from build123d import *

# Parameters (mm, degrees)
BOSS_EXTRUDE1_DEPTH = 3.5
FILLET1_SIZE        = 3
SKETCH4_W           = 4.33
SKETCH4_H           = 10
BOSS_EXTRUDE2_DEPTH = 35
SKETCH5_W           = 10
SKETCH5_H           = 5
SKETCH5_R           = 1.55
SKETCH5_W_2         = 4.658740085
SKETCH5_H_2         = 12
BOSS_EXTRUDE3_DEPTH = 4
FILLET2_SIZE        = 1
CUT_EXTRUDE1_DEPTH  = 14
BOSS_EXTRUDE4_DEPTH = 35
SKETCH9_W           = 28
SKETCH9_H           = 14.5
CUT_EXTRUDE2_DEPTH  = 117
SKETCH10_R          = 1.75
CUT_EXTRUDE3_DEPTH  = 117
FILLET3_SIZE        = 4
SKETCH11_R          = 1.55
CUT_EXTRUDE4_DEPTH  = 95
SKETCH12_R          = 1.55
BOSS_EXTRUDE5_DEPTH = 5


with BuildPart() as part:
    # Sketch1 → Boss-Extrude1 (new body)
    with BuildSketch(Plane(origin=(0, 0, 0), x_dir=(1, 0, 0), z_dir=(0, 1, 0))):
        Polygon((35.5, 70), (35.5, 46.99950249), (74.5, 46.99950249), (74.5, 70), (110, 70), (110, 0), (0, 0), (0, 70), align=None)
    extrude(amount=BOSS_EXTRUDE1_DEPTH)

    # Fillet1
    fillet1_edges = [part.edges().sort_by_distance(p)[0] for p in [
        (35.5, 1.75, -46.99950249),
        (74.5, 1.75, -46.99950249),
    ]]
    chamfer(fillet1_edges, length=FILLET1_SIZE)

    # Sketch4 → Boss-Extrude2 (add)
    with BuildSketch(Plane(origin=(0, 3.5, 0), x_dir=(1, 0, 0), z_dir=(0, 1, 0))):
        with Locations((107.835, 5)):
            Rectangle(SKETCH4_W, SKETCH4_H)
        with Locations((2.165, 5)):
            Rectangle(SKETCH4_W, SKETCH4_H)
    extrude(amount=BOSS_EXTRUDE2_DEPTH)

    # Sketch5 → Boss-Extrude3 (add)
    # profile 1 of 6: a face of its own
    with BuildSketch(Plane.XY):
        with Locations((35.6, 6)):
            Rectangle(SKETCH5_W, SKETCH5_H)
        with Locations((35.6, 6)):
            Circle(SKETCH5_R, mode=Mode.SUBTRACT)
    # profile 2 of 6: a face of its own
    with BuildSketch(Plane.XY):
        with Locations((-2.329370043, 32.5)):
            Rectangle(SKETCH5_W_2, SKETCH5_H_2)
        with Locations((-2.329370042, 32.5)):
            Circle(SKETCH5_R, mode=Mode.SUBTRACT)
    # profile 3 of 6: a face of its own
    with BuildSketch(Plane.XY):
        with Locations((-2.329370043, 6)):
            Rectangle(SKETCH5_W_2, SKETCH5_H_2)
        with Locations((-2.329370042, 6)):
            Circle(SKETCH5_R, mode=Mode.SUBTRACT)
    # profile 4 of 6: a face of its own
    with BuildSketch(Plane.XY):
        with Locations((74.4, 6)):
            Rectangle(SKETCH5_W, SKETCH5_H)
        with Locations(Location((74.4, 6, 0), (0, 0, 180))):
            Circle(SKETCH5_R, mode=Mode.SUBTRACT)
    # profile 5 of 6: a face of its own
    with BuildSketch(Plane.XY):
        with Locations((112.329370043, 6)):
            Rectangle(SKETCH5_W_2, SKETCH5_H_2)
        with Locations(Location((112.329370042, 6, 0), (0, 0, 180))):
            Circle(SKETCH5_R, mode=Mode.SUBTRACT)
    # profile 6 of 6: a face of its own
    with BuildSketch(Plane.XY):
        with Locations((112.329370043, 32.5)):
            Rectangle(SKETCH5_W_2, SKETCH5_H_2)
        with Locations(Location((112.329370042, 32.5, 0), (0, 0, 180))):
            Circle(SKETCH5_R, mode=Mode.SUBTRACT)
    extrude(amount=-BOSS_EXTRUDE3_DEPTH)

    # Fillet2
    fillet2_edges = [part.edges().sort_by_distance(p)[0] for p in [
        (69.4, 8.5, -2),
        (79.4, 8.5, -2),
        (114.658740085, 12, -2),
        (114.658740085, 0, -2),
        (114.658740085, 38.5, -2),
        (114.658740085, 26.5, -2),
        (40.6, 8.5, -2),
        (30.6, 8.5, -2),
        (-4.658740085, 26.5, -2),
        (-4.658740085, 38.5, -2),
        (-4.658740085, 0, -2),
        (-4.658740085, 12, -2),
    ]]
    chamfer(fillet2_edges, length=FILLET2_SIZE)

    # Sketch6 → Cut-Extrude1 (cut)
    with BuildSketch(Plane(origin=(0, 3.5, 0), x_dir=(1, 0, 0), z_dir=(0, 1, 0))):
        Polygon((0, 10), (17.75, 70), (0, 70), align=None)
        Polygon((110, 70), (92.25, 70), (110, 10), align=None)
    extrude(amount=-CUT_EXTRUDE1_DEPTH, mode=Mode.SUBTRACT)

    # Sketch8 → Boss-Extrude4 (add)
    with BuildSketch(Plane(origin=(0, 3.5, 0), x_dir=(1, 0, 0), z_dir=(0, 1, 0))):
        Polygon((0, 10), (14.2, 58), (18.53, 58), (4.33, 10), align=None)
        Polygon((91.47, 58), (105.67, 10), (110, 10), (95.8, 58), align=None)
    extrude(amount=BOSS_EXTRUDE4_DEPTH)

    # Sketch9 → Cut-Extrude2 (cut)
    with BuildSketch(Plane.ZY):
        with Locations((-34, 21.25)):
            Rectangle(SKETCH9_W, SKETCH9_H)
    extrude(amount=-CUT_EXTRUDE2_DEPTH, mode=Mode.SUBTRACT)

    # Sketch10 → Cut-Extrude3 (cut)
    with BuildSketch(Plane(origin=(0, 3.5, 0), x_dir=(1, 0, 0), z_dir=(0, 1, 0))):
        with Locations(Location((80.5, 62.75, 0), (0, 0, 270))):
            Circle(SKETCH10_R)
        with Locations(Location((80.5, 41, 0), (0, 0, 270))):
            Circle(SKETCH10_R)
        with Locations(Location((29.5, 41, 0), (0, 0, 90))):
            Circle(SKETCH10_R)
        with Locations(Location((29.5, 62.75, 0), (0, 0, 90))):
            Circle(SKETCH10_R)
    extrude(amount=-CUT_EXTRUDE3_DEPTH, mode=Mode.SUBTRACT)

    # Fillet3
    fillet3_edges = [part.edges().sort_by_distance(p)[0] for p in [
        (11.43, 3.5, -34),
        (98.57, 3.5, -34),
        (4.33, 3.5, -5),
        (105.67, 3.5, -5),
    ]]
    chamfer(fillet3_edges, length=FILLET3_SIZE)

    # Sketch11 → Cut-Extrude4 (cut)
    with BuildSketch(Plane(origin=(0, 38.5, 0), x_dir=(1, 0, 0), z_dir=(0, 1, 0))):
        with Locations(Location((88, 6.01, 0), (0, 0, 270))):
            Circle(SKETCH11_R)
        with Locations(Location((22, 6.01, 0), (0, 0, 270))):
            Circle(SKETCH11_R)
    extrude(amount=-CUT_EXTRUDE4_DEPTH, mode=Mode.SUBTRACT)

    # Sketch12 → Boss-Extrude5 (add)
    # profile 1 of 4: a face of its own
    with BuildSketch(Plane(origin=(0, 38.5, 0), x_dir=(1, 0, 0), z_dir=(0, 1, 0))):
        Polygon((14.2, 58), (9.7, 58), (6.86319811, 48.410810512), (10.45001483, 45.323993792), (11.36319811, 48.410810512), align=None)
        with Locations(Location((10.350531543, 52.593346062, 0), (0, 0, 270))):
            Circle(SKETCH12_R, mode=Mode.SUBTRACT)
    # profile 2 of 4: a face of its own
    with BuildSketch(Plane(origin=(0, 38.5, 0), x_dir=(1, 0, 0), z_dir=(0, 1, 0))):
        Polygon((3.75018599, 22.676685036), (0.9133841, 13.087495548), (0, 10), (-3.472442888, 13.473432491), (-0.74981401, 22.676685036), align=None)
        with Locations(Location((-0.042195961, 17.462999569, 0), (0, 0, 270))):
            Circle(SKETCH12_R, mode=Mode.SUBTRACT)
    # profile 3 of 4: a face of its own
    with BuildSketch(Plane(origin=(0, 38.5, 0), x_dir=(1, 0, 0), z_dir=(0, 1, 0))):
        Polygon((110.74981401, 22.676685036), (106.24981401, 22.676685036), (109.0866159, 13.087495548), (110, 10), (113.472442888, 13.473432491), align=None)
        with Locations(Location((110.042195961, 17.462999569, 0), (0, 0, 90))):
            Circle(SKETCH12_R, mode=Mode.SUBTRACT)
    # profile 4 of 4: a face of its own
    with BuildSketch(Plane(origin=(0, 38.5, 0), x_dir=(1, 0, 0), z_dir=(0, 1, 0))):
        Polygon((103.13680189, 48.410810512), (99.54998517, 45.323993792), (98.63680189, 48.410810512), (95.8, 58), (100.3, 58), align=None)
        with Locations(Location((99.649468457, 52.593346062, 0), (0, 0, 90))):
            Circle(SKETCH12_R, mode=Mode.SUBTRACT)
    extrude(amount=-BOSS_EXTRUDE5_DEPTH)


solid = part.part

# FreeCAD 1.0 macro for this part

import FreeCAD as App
import Part
import Sketcher
from FreeCAD import Vector


def edges_at(feature, points):
    """Names of the edges that pass closest to the given points."""
    edges = feature.Shape.Edges
    near = lambda p: min(range(len(edges)), key=lambda i: edges[i].distToShape(Part.Vertex(*p))[0])
    return sorted({f"Edge{near(p) + 1}" for p in points})


def add_polygon(sketch, points):
    """Adds a closed chain of lines whose ends are joined by coincident constraints."""
    first, n = sketch.GeometryCount, len(points)
    for a, b in zip(points, points[1:] + points[:1]):
        sketch.addGeometry(Part.LineSegment(App.Vector(*a, 0), App.Vector(*b, 0)), False)
    for i in range(n):
        sketch.addConstraint(Sketcher.Constraint("Coincident", first + i, 2, first + (i + 1) % n, 1))

doc = App.newDocument("Part")
params = doc.addObject("Spreadsheet::Sheet", "Params")
for row, (alias, value) in enumerate([
    ("sketch1_width", "110 mm"),
    ("sketch1_width2", "39 mm"),
    ("sketch1_height", "70 mm"),
    ("pad1_length", "3.5 mm"),
    ("chamfer_size", "3 mm"),
    ("sketch2_height", "10 mm"),
    ("sketch2_width", "4.33 mm"),
    ("pad2_length", "35 mm"),
    ("sketch3_diameter", "3.1 mm"),
    ("sketch3_width", "10 mm"),
    ("sketch3_height", "5 mm"),
    ("sketch3_height2", "12 mm"),
    ("pad3_length", "4 mm"),
    ("chamfer2_size", "1 mm"),
    ("sketch4_height", "60 mm"),
    ("sketch4_width", "17.75 mm"),
    ("pocket1_length", "14 mm"),
    ("sketch5_width", "4.33 mm"),
    ("pad4_length", "35 mm"),
    ("sketch6_height", "28 mm"),
    ("sketch6_width", "14.5 mm"),
    ("pocket2_length", "117 mm"),
    ("sketch7_diameter", "3.5 mm"),
    ("pocket3_length", "117 mm"),
    ("chamfer3_size", "4 mm"),
    ("sketch8_diameter", "3.1 mm"),
    ("pocket4_length", "95 mm"),
    ("sketch9_diameter", "3.1 mm"),
    ("sketch9_length", "10 mm"),
    ("sketch9_width", "4.5 mm"),
    ("pad5_length", "5 mm"),
], start=1):
    params.set(f"A{row}", alias)
    params.set(f"B{row}", "=" + value)
    params.setAlias(f"B{row}", alias)

body = doc.addObject("PartDesign::Body", "Body")

# Sketch on XZ plane
sketch1 = body.newObject("Sketcher::SketchObject", "Sketch")
sketch1.AttachmentSupport = (doc.getObject("XZ_Plane"), [""])
sketch1.MapMode = "FlatFace"
add_polygon(sketch1, [(36, -47), (36, -70), (0, -70), (0, 0), (110, 0), (110, -70), (74, -70), (74, -47)])  # lines 0-7
sketch1.addConstraint([
    Sketcher.Constraint("Vertical", 0),
    Sketcher.Constraint("Horizontal", 1),
    Sketcher.Constraint("Vertical", 2),
    Sketcher.Constraint("Horizontal", 3),
    Sketcher.Constraint("Vertical", 4),
    Sketcher.Constraint("Horizontal", 5),
    Sketcher.Constraint("Vertical", 6),
    Sketcher.Constraint("Horizontal", 7),
    Sketcher.Constraint("Coincident", 2, 2, -1, 1),
    Sketcher.Constraint("Horizontal", 1, 2, 4, 2),
    Sketcher.Constraint("Equal", 1, 5),
    Sketcher.Constraint("DistanceX", 3, 1, 3, 2, 110.0),
    Sketcher.Constraint("DistanceX", 7, 2, 7, 1, 39.0),
    Sketcher.Constraint("DistanceY", 2, 1, 2, 2, 70.0),
    Sketcher.Constraint("DistanceY", 0, 2, 0, 1, 23.000498),
])
sketch1.setExpression("Constraints[19]", "Params.sketch1_width")
sketch1.setExpression("Constraints[20]", "Params.sketch1_width2")
sketch1.setExpression("Constraints[21]", "Params.sketch1_height")
pad1 = body.newObject("PartDesign::Pad", "Pad")
pad1.Profile = sketch1
pad1.setExpression("Length", "Params.pad1_length")
pad1.Reversed = True
doc.recompute()

chamfer = body.newObject("PartDesign::Chamfer", "Chamfer")
chamfer.Base = (pad1, edges_at(pad1, [(35.5, 1.75, -47), (74.5, 1.75, -47)]))
chamfer.setExpression("Size", "Params.chamfer_size")

# Sketch on XZ plane
sketch2 = body.newObject("Sketcher::SketchObject", "Sketch001")
sketch2.AttachmentSupport = (doc.getObject("XZ_Plane"), [""])
sketch2.MapMode = "FlatFace"
sketch2.AttachmentOffset = App.Placement(Vector(0, 0, -3.5), App.Rotation())
add_polygon(sketch2, [(105.7, -10), (105.7, 0), (110, 0), (110, -10)])  # lines 0-3
add_polygon(sketch2, [(0, -10), (0, 0), (4.3, 0), (4.3, -10)])  # lines 4-7
sketch2.addConstraint([
    Sketcher.Constraint("Vertical", 0),
    Sketcher.Constraint("Horizontal", 1),
    Sketcher.Constraint("Vertical", 2),
    Sketcher.Constraint("Horizontal", 3),
    Sketcher.Constraint("Vertical", 4),
    Sketcher.Constraint("Horizontal", 5),
    Sketcher.Constraint("Vertical", 6),
    Sketcher.Constraint("Horizontal", 7),
    Sketcher.Constraint("Coincident", 4, 2, -1, 1),
    Sketcher.Constraint("PointOnObject", 0, 2, -1),
    Sketcher.Constraint("Horizontal", 3, 2, 6, 2),
    Sketcher.Constraint("Equal", 3, 5),
    Sketcher.Constraint("DistanceY", 0, 1, 0, 2, 10.0),
    Sketcher.Constraint("DistanceX", -1, 1, 1, 2, 110.0),
    Sketcher.Constraint("DistanceX", 1, 1, 1, 2, 4.33),
])
sketch2.setExpression("Constraints[20]", "Params.sketch2_height")
sketch2.setExpression("Constraints[22]", "Params.sketch2_width")
pad2 = body.newObject("PartDesign::Pad", "Pad001")
pad2.Profile = sketch2
pad2.setExpression("Length", "Params.pad2_length")
pad2.Reversed = True

# Sketch on XY plane
sketch3 = body.newObject("Sketcher::SketchObject", "Sketch002")
sketch3.AttachmentSupport = (doc.getObject("XY_Plane"), [""])
sketch3.MapMode = "FlatFace"
add_polygon(sketch3, [(30.6, 8.5), (30.6, 3.5), (40.6, 3.5), (40.6, 8.5)])  # lines 0-3
sketch3.addGeometry(Part.Circle(Vector(35.6, 6, 0), Vector(0, 0, 1), 1.6), False)  # 4
add_polygon(sketch3, [(-4.7, 38.5), (-4.7, 26.5), (0, 26.5), (0, 38.5)])  # lines 5-8
sketch3.addGeometry(Part.Circle(Vector(-2.3, 32.5, 0), Vector(0, 0, 1), 1.6), False)  # 9
add_polygon(sketch3, [(-4.7, 12), (-4.7, 0), (0, 0), (0, 12)])  # lines 10-13
sketch3.addGeometry(Part.Circle(Vector(-2.3, 6, 0), Vector(0, 0, 1), 1.6), False)  # 14
add_polygon(sketch3, [(69.4, 8.5), (69.4, 3.5), (79.4, 3.5), (79.4, 8.5)])  # lines 15-18
sketch3.addGeometry(Part.Circle(Vector(74.4, 6, 0), Vector(0, 0, 1), 1.6), False)  # 19
add_polygon(sketch3, [(110, 12), (110, 0), (114.7, 0), (114.7, 12)])  # lines 20-23
sketch3.addGeometry(Part.Circle(Vector(112.3, 6, 0), Vector(0, 0, 1), 1.6), False)  # 24
add_polygon(sketch3, [(110, 38.5), (110, 26.5), (114.7, 26.5), (114.7, 38.5)])  # lines 25-28
sketch3.addGeometry(Part.Circle(Vector(112.3, 32.5, 0), Vector(0, 0, 1), 1.6), False)  # 29
sketch3.addConstraint([
    Sketcher.Constraint("Vertical", 0),
    Sketcher.Constraint("Horizontal", 1),
    Sketcher.Constraint("Vertical", 2),
    Sketcher.Constraint("Horizontal", 3),
    Sketcher.Constraint("Vertical", 5),
    Sketcher.Constraint("Horizontal", 6),
    Sketcher.Constraint("Vertical", 7),
    Sketcher.Constraint("Horizontal", 8),
    Sketcher.Constraint("Vertical", 10),
    Sketcher.Constraint("Horizontal", 11),
    Sketcher.Constraint("Vertical", 12),
    Sketcher.Constraint("Horizontal", 13),
    Sketcher.Constraint("Vertical", 15),
    Sketcher.Constraint("Horizontal", 16),
    Sketcher.Constraint("Vertical", 17),
    Sketcher.Constraint("Horizontal", 18),
    Sketcher.Constraint("Vertical", 20),
    Sketcher.Constraint("Horizontal", 21),
    Sketcher.Constraint("Vertical", 22),
    Sketcher.Constraint("Horizontal", 23),
    Sketcher.Constraint("Vertical", 25),
    Sketcher.Constraint("Horizontal", 26),
    Sketcher.Constraint("Vertical", 27),
    Sketcher.Constraint("Horizontal", 28),
    Sketcher.Constraint("Coincident", 11, 2, -1, 1),
    Sketcher.Constraint("Equal", 4, 9),
    Sketcher.Constraint("Equal", 9, 14),
    Sketcher.Constraint("Equal", 14, 19),
    Sketcher.Constraint("Equal", 19, 24),
    Sketcher.Constraint("Equal", 24, 29),
    Sketcher.Constraint("PointOnObject", 6, 2, -2),
    Sketcher.Constraint("PointOnObject", 20, 2, -1),
    Sketcher.Constraint("Horizontal", 4, 3, 14, 3),
    Sketcher.Constraint("Horizontal", 14, 3, 19, 3),
    Sketcher.Constraint("Horizontal", 19, 3, 24, 3),
    Sketcher.Constraint("Horizontal", 9, 3, 29, 3),
    Sketcher.Constraint("Horizontal", 1, 2, 15, 2),
    Sketcher.Constraint("Horizontal", 3, 2, 17, 2),
    Sketcher.Constraint("Horizontal", 13, 2, 22, 2),
    Sketcher.Constraint("Horizontal", 6, 2, 25, 2),
    Sketcher.Constraint("Horizontal", 8, 2, 27, 2),
    Sketcher.Constraint("Vertical", 9, 3, 14, 3),
    Sketcher.Constraint("Vertical", 24, 3, 29, 3),
    Sketcher.Constraint("Vertical", 8, 2, 10, 2),
    Sketcher.Constraint("Vertical", 23, 2, 25, 2),
    Sketcher.Constraint("Vertical", 22, 2, 26, 2),
    Sketcher.Constraint("Equal", 3, 16),
    Sketcher.Constraint("Equal", 13, 21),
    Sketcher.Constraint("Equal", 7, 10),
    Sketcher.Constraint("Diameter", 4, 3.1),
    Sketcher.Constraint("DistanceX", 1, 1, 1, 2, 10.0),
    Sketcher.Constraint("DistanceY", 0, 2, 0, 1, 5.0),
    Sketcher.Constraint("DistanceY", 5, 2, 5, 1, 12.0),
    Sketcher.Constraint("DistanceY", -1, 1, 4, 3, 6.0),
    Sketcher.Constraint("DistanceX", -1, 1, 20, 2, 110.0),
    Sketcher.Constraint("DistanceX", 0, 2, 4, 3, 5.0),
    Sketcher.Constraint("DistanceY", 0, 2, 9, 3, 29.0),
    Sketcher.Constraint("DistanceY", 5, 2, 9, 3, 6.0),
    Sketcher.Constraint("DistanceX", 15, 2, 19, 3, 5.0),
    Sketcher.Constraint("DistanceX", -1, 1, 4, 3, 35.6),
    Sketcher.Constraint("DistanceY", -1, 1, 9, 3, 32.5),
    Sketcher.Constraint("DistanceX", -1, 1, 19, 3, 74.4),
    Sketcher.Constraint("DistanceX", 6, 1, 6, 2, 4.65874),
    Sketcher.Constraint("DistanceX", 9, 3, -1, 1, 2.32937),
    Sketcher.Constraint("DistanceX", -1, 1, 24, 3, 112.32937),
])
sketch3.setExpression("Constraints[73]", "Params.sketch3_diameter")
sketch3.setExpression("Constraints[74]", "Params.sketch3_width")
sketch3.setExpression("Constraints[75]", "Params.sketch3_height")
sketch3.setExpression("Constraints[76]", "Params.sketch3_height2")
pad3 = body.newObject("PartDesign::Pad", "Pad002")
pad3.Profile = sketch3
pad3.setExpression("Length", "Params.pad3_length")
pad3.Reversed = True
doc.recompute()

chamfer2 = body.newObject("PartDesign::Chamfer", "Chamfer001")
chamfer2.Base = (pad3, edges_at(pad3, [
    (69.4, 8.5, -2),
    (79.4, 8.5, -2),
    (114.659, 12, -2),
    (114.659, 0, -2),
    (114.659, 38.5, -2),
    (114.659, 26.5, -2),
    (40.6, 8.5, -2),
    (30.6, 8.5, -2),
    (-4.659, 26.5, -2),
    (-4.659, 38.5, -2),
    (-4.659, 0, -2),
    (-4.659, 12, -2),
]))
chamfer2.setExpression("Size", "Params.chamfer2_size")

# Sketch on XZ plane
sketch4 = body.newObject("Sketcher::SketchObject", "Sketch003")
sketch4.AttachmentSupport = (doc.getObject("XZ_Plane"), [""])
sketch4.MapMode = "FlatFace"
sketch4.AttachmentOffset = App.Placement(Vector(0, 0, -3.5), App.Rotation())
add_polygon(sketch4, [(0, -10), (18, -70), (0, -70)])  # lines 0-2
add_polygon(sketch4, [(110, -70), (92, -70), (110, -10)])  # lines 3-5
sketch4.addConstraint([
    Sketcher.Constraint("Horizontal", 1),
    Sketcher.Constraint("Vertical", 2),
    Sketcher.Constraint("Horizontal", 3),
    Sketcher.Constraint("Vertical", 5),
    Sketcher.Constraint("PointOnObject", 1, 2, -2),
    Sketcher.Constraint("Horizontal", 1, 2, 3, 2),
    Sketcher.Constraint("Horizontal", 2, 2, 4, 2),
    Sketcher.Constraint("Equal", 1, 3),
    Sketcher.Constraint("DistanceY", 2, 1, 2, 2, 60.0),
    Sketcher.Constraint("DistanceY", 0, 2, -1, 1, 70.0),
    Sketcher.Constraint("DistanceX", -1, 1, 4, 2, 110.0),
    Sketcher.Constraint("DistanceX", 1, 2, 1, 1, 17.75),
])
sketch4.setExpression("Constraints[14]", "Params.sketch4_height")
sketch4.setExpression("Constraints[17]", "Params.sketch4_width")
pocket1 = body.newObject("PartDesign::Pocket", "Pocket")
pocket1.Profile = sketch4
pocket1.setExpression("Length", "Params.pocket1_length")
pocket1.Reversed = True

# Sketch on XZ plane
sketch5 = body.newObject("Sketcher::SketchObject", "Sketch004")
sketch5.AttachmentSupport = (doc.getObject("XZ_Plane"), [""])
sketch5.MapMode = "FlatFace"
sketch5.AttachmentOffset = App.Placement(Vector(0, 0, -3.5), App.Rotation())
add_polygon(sketch5, [(14.2, -58), (0, -10), (4.3, -10), (18.5, -58)])  # lines 0-3
add_polygon(sketch5, [(91.5, -58), (105.7, -10), (110, -10), (95.8, -58)])  # lines 4-7
sketch5.addConstraint([
    Sketcher.Constraint("Horizontal", 1),
    Sketcher.Constraint("Horizontal", 3),
    Sketcher.Constraint("Horizontal", 5),
    Sketcher.Constraint("Horizontal", 7),
    Sketcher.Constraint("PointOnObject", 0, 2, -2),
    Sketcher.Constraint("Parallel", 0, 2),
    Sketcher.Constraint("Parallel", 4, 6),
    Sketcher.Constraint("Horizontal", 1, 2, 4, 2),
    Sketcher.Constraint("Horizontal", 3, 2, 6, 2),
    Sketcher.Constraint("Equal", 3, 5),
    Sketcher.Constraint("Equal", 2, 4),
    Sketcher.Constraint("DistanceY", 0, 2, -1, 1, 10.0),
    Sketcher.Constraint("DistanceY", 2, 2, -1, 1, 58.0),
    Sketcher.Constraint("DistanceX", -1, 1, 5, 2, 110.0),
    Sketcher.Constraint("DistanceX", 1, 1, 1, 2, 4.33),
    Sketcher.Constraint("DistanceX", -1, 1, 3, 2, 14.2),
])
sketch5.setExpression("Constraints[22]", "Params.sketch5_width")
pad4 = body.newObject("PartDesign::Pad", "Pad003")
pad4.Profile = sketch5
pad4.setExpression("Length", "Params.pad4_length")
pad4.Reversed = True

# Sketch on YZ plane
sketch6 = body.newObject("Sketcher::SketchObject", "Sketch005")
sketch6.AttachmentSupport = (doc.getObject("YZ_Plane"), [""])
sketch6.MapMode = "FlatFace"
add_polygon(sketch6, [(28, -48), (14, -48), (14, -20), (28, -20)])  # lines 0-3
sketch6.addConstraint([
    Sketcher.Constraint("Horizontal", 0),
    Sketcher.Constraint("Vertical", 1),
    Sketcher.Constraint("Horizontal", 2),
    Sketcher.Constraint("Vertical", 3),
    Sketcher.Constraint("DistanceY", 1, 1, 1, 2, 28.0),
    Sketcher.Constraint("DistanceX", 0, 2, 0, 1, 14.5),
    Sketcher.Constraint("DistanceX", -1, 1, 0, 2, 14.0),
    Sketcher.Constraint("DistanceY", 0, 2, -1, 1, 48.0),
])
sketch6.setExpression("Constraints[8]", "Params.sketch6_height")
sketch6.setExpression("Constraints[9]", "Params.sketch6_width")
pocket2 = body.newObject("PartDesign::Pocket", "Pocket001")
pocket2.Profile = sketch6
pocket2.setExpression("Length", "Params.pocket2_length")
pocket2.Reversed = True

# Sketch on XZ plane
sketch7 = body.newObject("Sketcher::SketchObject", "Sketch006")
sketch7.AttachmentSupport = (doc.getObject("XZ_Plane"), [""])
sketch7.MapMode = "FlatFace"
sketch7.AttachmentOffset = App.Placement(Vector(0, 0, -3.5), App.Rotation())
sketch7.addGeometry([
    Part.Circle(Vector(80.5, -62.8, 0), Vector(0, 0, 1), 1.8),
    Part.Circle(Vector(80.5, -41, 0), Vector(0, 0, 1), 1.8),
    Part.Circle(Vector(29.5, -41, 0), Vector(0, 0, 1), 1.8),
    Part.Circle(Vector(29.5, -62.8, 0), Vector(0, 0, 1), 1.8),
], False)
sketch7.addConstraint([
    Sketcher.Constraint("Equal", 0, 1),
    Sketcher.Constraint("Equal", 1, 2),
    Sketcher.Constraint("Equal", 2, 3),
    Sketcher.Constraint("Horizontal", 1, 3, 2, 3),
    Sketcher.Constraint("Horizontal", 0, 3, 3, 3),
    Sketcher.Constraint("Vertical", 0, 3, 1, 3),
    Sketcher.Constraint("Vertical", 2, 3, 3, 3),
    Sketcher.Constraint("Diameter", 0, 3.5),
    Sketcher.Constraint("DistanceY", 1, 3, -1, 1, 41.0),
    Sketcher.Constraint("DistanceX", 2, 3, 1, 3, 51.0),
    Sketcher.Constraint("DistanceX", -1, 1, 0, 3, 80.5),
    Sketcher.Constraint("DistanceY", 0, 3, -1, 1, 62.75),
])
sketch7.setExpression("Constraints[7]", "Params.sketch7_diameter")
pocket3 = body.newObject("PartDesign::Pocket", "Pocket002")
pocket3.Profile = sketch7
pocket3.setExpression("Length", "Params.pocket3_length")
pocket3.Reversed = True
doc.recompute()

chamfer3 = body.newObject("PartDesign::Chamfer", "Chamfer002")
chamfer3.Base = (pocket3, edges_at(pocket3, [
    (11.43, 3.5, -34),
    (98.57, 3.5, -34),
    (4.33, 3.5, -5),
    (105.67, 3.5, -5),
]))
chamfer3.setExpression("Size", "Params.chamfer3_size")

# Sketch on XZ plane
sketch8 = body.newObject("Sketcher::SketchObject", "Sketch007")
sketch8.AttachmentSupport = (doc.getObject("XZ_Plane"), [""])
sketch8.MapMode = "FlatFace"
sketch8.AttachmentOffset = App.Placement(Vector(0, 0, -38.5), App.Rotation())
sketch8.addGeometry([
    Part.Circle(Vector(88, -6, 0), Vector(0, 0, 1), 1.6),
    Part.Circle(Vector(22, -6, 0), Vector(0, 0, 1), 1.6),
], False)
sketch8.addConstraint([
    Sketcher.Constraint("Equal", 0, 1),
    Sketcher.Constraint("Horizontal", 0, 3, 1, 3),
    Sketcher.Constraint("Diameter", 0, 3.1),
    Sketcher.Constraint("DistanceX", -1, 1, 0, 3, 88.0),
    Sketcher.Constraint("DistanceX", -1, 1, 1, 3, 22.0),
    Sketcher.Constraint("DistanceY", 0, 3, -1, 1, 6.01),
])
sketch8.setExpression("Constraints[2]", "Params.sketch8_diameter")
pocket4 = body.newObject("PartDesign::Pocket", "Pocket003")
pocket4.Profile = sketch8
pocket4.setExpression("Length", "Params.pocket4_length")
pocket4.Reversed = True

# Sketch on XZ plane
sketch9 = body.newObject("Sketcher::SketchObject", "Sketch008")
sketch9.AttachmentSupport = (doc.getObject("XZ_Plane"), [""])
sketch9.MapMode = "FlatFace"
sketch9.AttachmentOffset = App.Placement(Vector(0, 0, -38.5), App.Rotation())
add_polygon(sketch9, [(14.2, -58), (9.7, -58), (6.9, -48.4), (10.5, -45.3), (11.4, -48.4)])  # lines 0-4
sketch9.addGeometry(Part.Circle(Vector(10.4, -52.6, 0), Vector(0, 0, 1), 1.6), False)  # 5
add_polygon(sketch9, [(0.9, -13.1), (3.8, -22.7), (-0.7, -22.7), (-3.5, -13.5), (0, -10)])  # lines 6-10
sketch9.addGeometry(Part.Circle(Vector(0, -17.5, 0), Vector(0, 0, 1), 1.6), False)  # 11
add_polygon(sketch9, [(110.7, -22.7), (106.2, -22.7), (109.1, -13.1), (110, -10), (113.5, -13.5)])  # lines 12-16
sketch9.addGeometry(Part.Circle(Vector(110, -17.5, 0), Vector(0, 0, 1), 1.6), False)  # 17
add_polygon(sketch9, [(99.5, -45.3), (103.1, -48.4), (100.3, -58), (95.8, -58), (98.6, -48.4)])  # lines 18-22
sketch9.addGeometry(Part.Circle(Vector(99.6, -52.6, 0), Vector(0, 0, 1), 1.6), False)  # 23
sketch9.addConstraint([
    Sketcher.Constraint("Horizontal", 0),
    Sketcher.Constraint("Horizontal", 7),
    Sketcher.Constraint("Horizontal", 12),
    Sketcher.Constraint("Horizontal", 20),
    Sketcher.Constraint("Equal", 5, 11),
    Sketcher.Constraint("Equal", 11, 17),
    Sketcher.Constraint("Equal", 17, 23),
    Sketcher.Constraint("PointOnObject", 9, 2, -2),
    Sketcher.Constraint("Parallel", 1, 3),
    Sketcher.Constraint("Parallel", 3, 4),
    Sketcher.Constraint("Parallel", 4, 6),
    Sketcher.Constraint("Parallel", 6, 8),
    Sketcher.Constraint("Parallel", 8, 10),
    Sketcher.Constraint("Parallel", 13, 14),
    Sketcher.Constraint("Parallel", 14, 16),
    Sketcher.Constraint("Parallel", 16, 19),
    Sketcher.Constraint("Parallel", 19, 21),
    Sketcher.Constraint("Parallel", 21, 22),
    Sketcher.Constraint("Horizontal", 11, 3, 17, 3),
    Sketcher.Constraint("Horizontal", 5, 3, 23, 3),
    Sketcher.Constraint("Horizontal", 1, 2, 3, 2),
    Sketcher.Constraint("Horizontal", 7, 2, 12, 2),
    Sketcher.Constraint("Horizontal", 10, 2, 13, 2),
    Sketcher.Constraint("Horizontal", 9, 2, 14, 2),
    Sketcher.Constraint("Horizontal", 8, 2, 15, 2),
    Sketcher.Constraint("Horizontal", 3, 2, 18, 2),
    Sketcher.Constraint("Horizontal", 4, 2, 19, 2),
    Sketcher.Constraint("Horizontal", 18, 2, 21, 2),
    Sketcher.Constraint("Horizontal", 2, 2, 22, 2),
    Sketcher.Constraint("Equal", 0, 7),
    Sketcher.Constraint("Equal", 7, 12),
    Sketcher.Constraint("Equal", 12, 20),
    Sketcher.Constraint("Equal", 4, 6),
    Sketcher.Constraint("Equal", 6, 13),
    Sketcher.Constraint("Diameter", 5, 3.1),
    Sketcher.Constraint("Distance", 1, 10.0),
    Sketcher.Constraint("DistanceX", 0, 2, 0, 1, 4.5),
    Sketcher.Constraint("DistanceY", 0, 2, -1, 1, 58.0),
    Sketcher.Constraint("DistanceY", 9, 2, -1, 1, 10.0),
    Sketcher.Constraint("DistanceX", -1, 1, 14, 2, 110.0),
    Sketcher.Constraint("DistanceX", -1, 1, 0, 2, 9.7),
    Sketcher.Constraint("DistanceX", -1, 1, 19, 2, 100.3),
    Sketcher.Constraint("DistanceY", 11, 3, -1, 1, 17.463),
    Sketcher.Constraint("DistanceX", -1, 1, 1, 2, 6.863198),
    Sketcher.Constraint("DistanceX", 2, 2, 12, 2, 95.799799),
    Sketcher.Constraint("DistanceY", 2, 2, 13, 2, 32.236498),
    Sketcher.Constraint("Distance", 8, 9.597529),
    Sketcher.Constraint("DistanceX", -1, 1, 5, 3, 10.350532),
    Sketcher.Constraint("DistanceX", -1, 1, 23, 3, 99.649468),
    Sketcher.Constraint("DistanceX", 11, 3, 17, 3, 110.084392),
    Sketcher.Constraint("DistanceX", 11, 3, 2, 2, 10.492211),
    Sketcher.Constraint("DistanceY", 5, 3, 6, 2, 29.916661),
])
sketch9.setExpression("Constraints[54]", "Params.sketch9_diameter")
sketch9.setExpression("Constraints[55]", "Params.sketch9_length")
sketch9.setExpression("Constraints[56]", "Params.sketch9_width")
pad5 = body.newObject("PartDesign::Pad", "Pad004")
pad5.Profile = sketch9
pad5.setExpression("Length", "Params.pad5_length")

doc.recompute()
